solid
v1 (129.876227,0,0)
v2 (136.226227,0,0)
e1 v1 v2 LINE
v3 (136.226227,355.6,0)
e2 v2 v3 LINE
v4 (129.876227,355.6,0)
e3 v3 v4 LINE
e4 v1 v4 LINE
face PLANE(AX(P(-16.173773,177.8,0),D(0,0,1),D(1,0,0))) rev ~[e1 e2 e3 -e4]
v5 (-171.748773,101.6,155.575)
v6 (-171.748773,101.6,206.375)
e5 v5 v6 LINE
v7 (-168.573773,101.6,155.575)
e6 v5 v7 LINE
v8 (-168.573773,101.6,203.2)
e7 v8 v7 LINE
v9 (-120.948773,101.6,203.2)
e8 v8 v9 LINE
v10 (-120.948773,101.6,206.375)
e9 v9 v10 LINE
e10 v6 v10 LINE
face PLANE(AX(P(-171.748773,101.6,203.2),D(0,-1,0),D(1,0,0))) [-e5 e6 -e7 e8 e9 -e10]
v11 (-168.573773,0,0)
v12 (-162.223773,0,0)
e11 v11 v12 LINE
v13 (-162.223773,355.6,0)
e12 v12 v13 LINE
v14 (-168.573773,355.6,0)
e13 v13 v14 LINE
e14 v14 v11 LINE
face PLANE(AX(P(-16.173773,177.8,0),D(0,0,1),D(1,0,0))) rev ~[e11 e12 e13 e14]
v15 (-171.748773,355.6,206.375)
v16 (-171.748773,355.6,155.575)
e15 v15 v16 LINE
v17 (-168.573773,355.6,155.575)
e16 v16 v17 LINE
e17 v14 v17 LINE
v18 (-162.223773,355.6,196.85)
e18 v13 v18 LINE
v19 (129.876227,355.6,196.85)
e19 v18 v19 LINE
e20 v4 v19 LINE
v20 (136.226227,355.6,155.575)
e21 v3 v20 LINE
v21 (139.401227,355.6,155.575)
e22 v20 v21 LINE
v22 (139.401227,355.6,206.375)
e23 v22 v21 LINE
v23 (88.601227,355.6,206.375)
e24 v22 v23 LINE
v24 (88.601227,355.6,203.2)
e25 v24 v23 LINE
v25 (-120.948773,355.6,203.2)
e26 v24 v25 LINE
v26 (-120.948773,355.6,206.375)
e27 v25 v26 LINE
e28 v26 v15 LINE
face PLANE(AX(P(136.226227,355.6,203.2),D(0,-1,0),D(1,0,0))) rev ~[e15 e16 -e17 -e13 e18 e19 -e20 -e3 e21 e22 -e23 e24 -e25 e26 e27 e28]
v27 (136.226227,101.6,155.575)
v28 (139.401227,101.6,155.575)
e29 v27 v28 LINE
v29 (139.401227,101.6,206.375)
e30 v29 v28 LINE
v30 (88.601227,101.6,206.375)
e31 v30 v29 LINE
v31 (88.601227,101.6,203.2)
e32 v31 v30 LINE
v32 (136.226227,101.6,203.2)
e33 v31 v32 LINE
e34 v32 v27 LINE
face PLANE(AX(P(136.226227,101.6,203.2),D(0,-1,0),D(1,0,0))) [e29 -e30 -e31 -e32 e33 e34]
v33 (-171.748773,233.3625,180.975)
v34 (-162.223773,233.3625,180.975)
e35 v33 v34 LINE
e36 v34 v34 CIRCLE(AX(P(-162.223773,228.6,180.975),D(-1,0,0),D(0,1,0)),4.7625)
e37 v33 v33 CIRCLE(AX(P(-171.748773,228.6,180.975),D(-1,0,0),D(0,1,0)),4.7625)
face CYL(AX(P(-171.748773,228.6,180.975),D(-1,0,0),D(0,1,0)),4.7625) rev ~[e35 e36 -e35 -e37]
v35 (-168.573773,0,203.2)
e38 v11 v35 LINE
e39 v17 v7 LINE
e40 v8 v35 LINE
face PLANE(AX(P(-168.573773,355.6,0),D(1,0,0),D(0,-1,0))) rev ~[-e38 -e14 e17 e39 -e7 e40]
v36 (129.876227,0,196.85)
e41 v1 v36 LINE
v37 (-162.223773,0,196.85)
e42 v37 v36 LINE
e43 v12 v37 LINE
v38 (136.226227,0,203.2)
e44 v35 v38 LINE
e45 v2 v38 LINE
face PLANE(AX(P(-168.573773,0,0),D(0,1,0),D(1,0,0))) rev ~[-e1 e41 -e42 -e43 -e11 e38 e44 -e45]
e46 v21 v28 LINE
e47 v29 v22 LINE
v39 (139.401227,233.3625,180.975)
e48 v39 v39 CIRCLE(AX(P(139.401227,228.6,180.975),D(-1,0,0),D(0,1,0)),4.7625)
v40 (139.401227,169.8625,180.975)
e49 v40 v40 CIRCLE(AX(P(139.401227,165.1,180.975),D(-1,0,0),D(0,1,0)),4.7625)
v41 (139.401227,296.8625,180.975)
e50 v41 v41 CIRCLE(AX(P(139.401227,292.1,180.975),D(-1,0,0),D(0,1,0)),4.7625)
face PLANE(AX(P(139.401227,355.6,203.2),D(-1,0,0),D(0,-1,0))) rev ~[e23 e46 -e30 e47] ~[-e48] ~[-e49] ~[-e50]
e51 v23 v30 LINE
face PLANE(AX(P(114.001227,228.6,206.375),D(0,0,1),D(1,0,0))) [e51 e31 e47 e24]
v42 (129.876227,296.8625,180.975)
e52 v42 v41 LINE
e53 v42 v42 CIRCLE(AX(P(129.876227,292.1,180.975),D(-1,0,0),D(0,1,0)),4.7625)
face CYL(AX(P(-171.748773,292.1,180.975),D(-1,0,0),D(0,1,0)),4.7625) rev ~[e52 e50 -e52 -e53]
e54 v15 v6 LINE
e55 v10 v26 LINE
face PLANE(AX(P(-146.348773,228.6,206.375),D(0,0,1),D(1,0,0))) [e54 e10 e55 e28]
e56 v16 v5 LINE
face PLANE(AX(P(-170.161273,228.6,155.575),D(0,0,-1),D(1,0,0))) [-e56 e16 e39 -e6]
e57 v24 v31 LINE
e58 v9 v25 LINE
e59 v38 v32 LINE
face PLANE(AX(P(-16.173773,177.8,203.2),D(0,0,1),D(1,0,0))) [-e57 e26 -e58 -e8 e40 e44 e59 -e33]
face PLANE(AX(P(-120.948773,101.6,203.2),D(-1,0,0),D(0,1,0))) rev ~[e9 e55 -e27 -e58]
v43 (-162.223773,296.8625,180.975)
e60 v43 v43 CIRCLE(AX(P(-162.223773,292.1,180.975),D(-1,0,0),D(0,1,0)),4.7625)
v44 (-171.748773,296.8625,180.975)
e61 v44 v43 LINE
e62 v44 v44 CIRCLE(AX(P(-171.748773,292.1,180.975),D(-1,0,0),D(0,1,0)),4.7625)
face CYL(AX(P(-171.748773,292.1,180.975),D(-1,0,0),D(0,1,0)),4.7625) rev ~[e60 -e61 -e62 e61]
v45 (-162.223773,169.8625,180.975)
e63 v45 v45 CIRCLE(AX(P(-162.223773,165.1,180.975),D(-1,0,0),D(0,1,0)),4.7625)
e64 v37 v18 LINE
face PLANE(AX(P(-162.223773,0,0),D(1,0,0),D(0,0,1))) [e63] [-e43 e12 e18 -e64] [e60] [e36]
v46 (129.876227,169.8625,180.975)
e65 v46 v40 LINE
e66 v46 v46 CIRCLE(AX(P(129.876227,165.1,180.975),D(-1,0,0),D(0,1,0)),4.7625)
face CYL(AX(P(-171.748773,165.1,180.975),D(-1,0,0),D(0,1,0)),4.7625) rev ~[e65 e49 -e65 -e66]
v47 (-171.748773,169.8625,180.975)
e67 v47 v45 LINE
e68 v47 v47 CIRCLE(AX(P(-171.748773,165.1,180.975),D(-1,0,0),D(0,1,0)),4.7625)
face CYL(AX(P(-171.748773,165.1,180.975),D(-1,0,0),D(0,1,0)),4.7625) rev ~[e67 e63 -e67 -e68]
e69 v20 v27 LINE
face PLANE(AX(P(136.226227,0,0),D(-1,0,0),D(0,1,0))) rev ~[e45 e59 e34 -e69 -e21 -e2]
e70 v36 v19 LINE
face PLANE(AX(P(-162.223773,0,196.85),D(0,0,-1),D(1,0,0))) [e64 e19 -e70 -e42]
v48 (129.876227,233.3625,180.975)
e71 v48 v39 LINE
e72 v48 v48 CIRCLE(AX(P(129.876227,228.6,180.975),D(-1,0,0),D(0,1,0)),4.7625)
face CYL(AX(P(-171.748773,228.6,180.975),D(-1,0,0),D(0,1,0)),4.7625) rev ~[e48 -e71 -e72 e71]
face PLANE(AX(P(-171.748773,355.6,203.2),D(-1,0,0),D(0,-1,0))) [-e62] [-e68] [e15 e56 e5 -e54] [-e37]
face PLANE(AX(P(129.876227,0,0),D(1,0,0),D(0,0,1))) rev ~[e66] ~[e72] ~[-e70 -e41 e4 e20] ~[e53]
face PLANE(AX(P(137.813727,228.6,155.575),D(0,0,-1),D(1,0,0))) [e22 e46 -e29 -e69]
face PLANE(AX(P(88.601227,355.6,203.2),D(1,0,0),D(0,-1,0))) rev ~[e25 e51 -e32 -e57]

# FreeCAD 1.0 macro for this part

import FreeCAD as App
import Part
import Sketcher

V = App.Vector
Q = App.Units.Quantity


def faces_at(feature, points):
    """Names of the faces that lie closest to the given points."""
    faces = feature.Shape.Faces
    near = lambda p: min(range(len(faces)), key=lambda i: faces[i].distToShape(Part.Vertex(*p))[0])
    return sorted({f"Face{near(p) + 1}" for p in points})


def add_polygon(sketch, points):
    """Adds a closed chain of lines whose ends are joined by coincident constraints."""
    first, n = sketch.GeometryCount, len(points)
    for a, b in zip(points, points[1:] + points[:1]):
        sketch.addGeometry(Part.LineSegment(App.Vector(*a, 0), App.Vector(*b, 0)), False)
    for i in range(n):
        sketch.addConstraint(Sketcher.Constraint("Coincident", first + i, 2, first + (i + 1) % n, 1))

doc = App.newDocument("Part")
body = doc.addObject("PartDesign::Body", "Body")

# Sketch on XY plane
sketch1 = doc.addObject("Sketcher::SketchObject", "Sketch")
body.addObject(sketch1)
sketch1.AttachmentSupport = (doc.XY_Plane, [""])
sketch1.MapMode = "FlatFace"
add_polygon(sketch1, [(-168.573773, 0), (136.226227, 0), (136.226227, 355.6), (-168.573773, 355.6)])  # lines 0-3
sketch1.addConstraint(Sketcher.Constraint("Horizontal", 0))
sketch1.addConstraint(Sketcher.Constraint("Vertical", 1))
sketch1.addConstraint(Sketcher.Constraint("Horizontal", 2))
sketch1.addConstraint(Sketcher.Constraint("Vertical", 3))
sketch1.addConstraint(Sketcher.Constraint("PointOnObject", 0, 2, -1))
sketch1.addConstraint(Sketcher.Constraint("DistanceX", 0, 1, 0, 2, Q("12 in")))
sketch1.addConstraint(Sketcher.Constraint("DistanceY", 1, 1, 1, 2, Q("14 in")))
sketch1.addConstraint(Sketcher.Constraint("DistanceX", -1, 1, 0, 2, Q("136.226227 mm")))
pad1 = doc.addObject("PartDesign::Pad", "Pad")
body.addObject(pad1)
pad1.Profile = sketch1
pad1.Length = Q("8 in")
doc.recompute()

thickness = doc.addObject("PartDesign::Thickness", "Thickness")
body.addObject(thickness)
thickness.Base = (pad1, faces_at(pad1, [(-16.174, 177.8, 0)]))
thickness.Value = Q("0.25 in")
thickness.Reversed = True
thickness.Join = "Arc"

# Sketch on XY plane
sketch2 = doc.addObject("Sketcher::SketchObject", "Sketch001")
body.addObject(sketch2)
sketch2.AttachmentSupport = (doc.XY_Plane, [""])
sketch2.MapMode = "FlatFace"
sketch2.AttachmentOffset = App.Placement(V(0, 0, 8 * 25.4), App.Rotation())
add_polygon(sketch2, [(-171.748773, 101.6), (-120.948773, 101.6), (-120.948773, 355.6), (-171.748773, 355.6)])  # lines 0-3
add_polygon(sketch2, [(139.401227, 355.6), (88.601227, 355.6), (88.601227, 101.6), (139.401227, 101.6)])  # lines 4-7
sketch2.addConstraint(Sketcher.Constraint("Horizontal", 0))
sketch2.addConstraint(Sketcher.Constraint("Vertical", 1))
sketch2.addConstraint(Sketcher.Constraint("Horizontal", 2))
sketch2.addConstraint(Sketcher.Constraint("Vertical", 3))
sketch2.addConstraint(Sketcher.Constraint("Horizontal", 4))
sketch2.addConstraint(Sketcher.Constraint("Vertical", 5))
sketch2.addConstraint(Sketcher.Constraint("Horizontal", 6))
sketch2.addConstraint(Sketcher.Constraint("Vertical", 7))
sketch2.addConstraint(Sketcher.Constraint("Horizontal", 2, 2, 4, 2))
sketch2.addConstraint(Sketcher.Constraint("Horizontal", 3, 2, 5, 2))
sketch2.addConstraint(Sketcher.Constraint("Equal", 2, 4))
sketch2.addConstraint(Sketcher.Constraint("DistanceX", 0, 1, 0, 2, Q("2 in")))
sketch2.addConstraint(Sketcher.Constraint("DistanceY", 1, 1, 1, 2, Q("10 in")))
sketch2.addConstraint(Sketcher.Constraint("DistanceY", -1, 1, 0, 2, Q("4 in")))
sketch2.addConstraint(Sketcher.Constraint("DistanceX", 1, 2, 4, 2, Q("8.25 in")))
sketch2.addConstraint(Sketcher.Constraint("DistanceX", 0, 2, -1, 1, Q("120.948773 mm")))
pad2 = doc.addObject("PartDesign::Pad", "Pad001")
body.addObject(pad2)
pad2.Profile = sketch2
pad2.Length = Q("0.125 in")

# Sketch on XZ plane
sketch3 = doc.addObject("Sketcher::SketchObject", "Sketch002")
body.addObject(sketch3)
sketch3.AttachmentSupport = (doc.XZ_Plane, [""])
sketch3.MapMode = "FlatFace"
add_polygon(sketch3, [(-162.223773, 196.85), (-162.223773, 0), (129.876227, 0), (129.876227, 196.85)])  # lines 0-3
sketch3.addConstraint(Sketcher.Constraint("Vertical", 0))
sketch3.addConstraint(Sketcher.Constraint("Horizontal", 1))
sketch3.addConstraint(Sketcher.Constraint("Vertical", 2))
sketch3.addConstraint(Sketcher.Constraint("Horizontal", 3))
sketch3.addConstraint(Sketcher.Constraint("PointOnObject", 0, 2, -1))
sketch3.addConstraint(Sketcher.Constraint("DistanceX", 1, 1, 1, 2, Q("11.5 in")))
sketch3.addConstraint(Sketcher.Constraint("DistanceY", 0, 2, 0, 1, Q("7.75 in")))
sketch3.addConstraint(Sketcher.Constraint("DistanceX", 0, 2, -1, 1, Q("162.223773 mm")))
pocket1 = doc.addObject("PartDesign::Pocket", "Pocket")
body.addObject(pocket1)
pocket1.Profile = sketch3
pocket1.Length = Q("25.2 in")

# Sketch on XY plane
sketch4 = doc.addObject("Sketcher::SketchObject", "Sketch003")
body.addObject(sketch4)
sketch4.AttachmentSupport = (doc.XY_Plane, [""])
sketch4.MapMode = "FlatFace"
sketch4.AttachmentOffset = App.Placement(V(0, 0, 8 * 25.4), App.Rotation())
add_polygon(sketch4, [(-171.748773, 101.6), (-171.748773, 355.6), (-168.573773, 355.6), (-168.573773, 101.6)])  # lines 0-3
sketch4.addConstraint(Sketcher.Constraint("Vertical", 0))
sketch4.addConstraint(Sketcher.Constraint("Horizontal", 1))
sketch4.addConstraint(Sketcher.Constraint("Vertical", 2))
sketch4.addConstraint(Sketcher.Constraint("Horizontal", 3))
sketch4.addConstraint(Sketcher.Constraint("DistanceY", 0, 1, 0, 2, Q("10 in")))
sketch4.addConstraint(Sketcher.Constraint("DistanceY", -1, 1, 0, 2, Q("14 in")))
sketch4.addConstraint(Sketcher.Constraint("DistanceX", 1, 1, 1, 2, Q("0.125 in")))
sketch4.addConstraint(Sketcher.Constraint("DistanceX", 0, 2, -1, 1, Q("171.748773 mm")))
pad3 = doc.addObject("PartDesign::Pad", "Pad002")
body.addObject(pad3)
pad3.Profile = sketch4
pad3.Length = Q("1.875 in")
pad3.Reversed = True

# Sketch on XY plane
sketch5 = doc.addObject("Sketcher::SketchObject", "Sketch004")
body.addObject(sketch5)
sketch5.AttachmentSupport = (doc.XY_Plane, [""])
sketch5.MapMode = "FlatFace"
sketch5.AttachmentOffset = App.Placement(V(0, 0, 8 * 25.4), App.Rotation())
add_polygon(sketch5, [(136.226227, 101.6), (136.226227, 355.6), (139.401227, 355.6), (139.401227, 101.6)])  # lines 0-3
sketch5.addConstraint(Sketcher.Constraint("Vertical", 0))
sketch5.addConstraint(Sketcher.Constraint("Horizontal", 1))
sketch5.addConstraint(Sketcher.Constraint("Vertical", 2))
sketch5.addConstraint(Sketcher.Constraint("Horizontal", 3))
sketch5.addConstraint(Sketcher.Constraint("DistanceY", 0, 1, 0, 2, Q("10 in")))
sketch5.addConstraint(Sketcher.Constraint("DistanceY", -1, 1, 0, 2, Q("14 in")))
sketch5.addConstraint(Sketcher.Constraint("DistanceX", 1, 1, 1, 2, Q("0.125 in")))
sketch5.addConstraint(Sketcher.Constraint("DistanceX", -1, 1, 0, 2, Q("136.226227 mm")))
pad4 = doc.addObject("PartDesign::Pad", "Pad003")
body.addObject(pad4)
pad4.Profile = sketch5
pad4.Length = Q("1.875 in")
pad4.Reversed = True

# Sketch on YZ plane
sketch6 = doc.addObject("Sketcher::SketchObject", "Sketch005")
body.addObject(sketch6)
sketch6.AttachmentSupport = (doc.YZ_Plane, [""])
sketch6.MapMode = "FlatFace"
sketch6.AttachmentOffset = App.Placement(V(0, 0, -171.748773), App.Rotation())
sketch6.addGeometry(Part.Circle(V(292.1, 180.975, 0), V(0, 0, 1), 4.7625), False)
sketch6.addGeometry(Part.Circle(V(165.1, 180.975, 0), V(0, 0, 1), 4.7625), False)
sketch6.addGeometry(Part.Circle(V(228.6, 180.975, 0), V(0, 0, 1), 4.7625), False)
sketch6.addConstraint(Sketcher.Constraint("Equal", 0, 1))
sketch6.addConstraint(Sketcher.Constraint("Equal", 1, 2))
sketch6.addConstraint(Sketcher.Constraint("Horizontal", 0, 3, 1, 3))
sketch6.addConstraint(Sketcher.Constraint("Horizontal", 1, 3, 2, 3))
sketch6.addConstraint(Sketcher.Constraint("Diameter", 0, Q("0.375 in")))
sketch6.addConstraint(Sketcher.Constraint("DistanceX", -1, 1, 2, 3, Q("9 in")))
sketch6.addConstraint(Sketcher.Constraint("DistanceX", 1, 3, 0, 3, Q("5 in")))
sketch6.addConstraint(Sketcher.Constraint("DistanceX", -1, 1, 0, 3, Q("11.5 in")))
sketch6.addConstraint(Sketcher.Constraint("DistanceY", -1, 1, 0, 3, Q("7.125 in")))
pocket2 = doc.addObject("PartDesign::Pocket", "Pocket001")
body.addObject(pocket2)
pocket2.Profile = sketch6
pocket2.Type = "ThroughAll"
pocket2.Reversed = True

doc.recompute()
